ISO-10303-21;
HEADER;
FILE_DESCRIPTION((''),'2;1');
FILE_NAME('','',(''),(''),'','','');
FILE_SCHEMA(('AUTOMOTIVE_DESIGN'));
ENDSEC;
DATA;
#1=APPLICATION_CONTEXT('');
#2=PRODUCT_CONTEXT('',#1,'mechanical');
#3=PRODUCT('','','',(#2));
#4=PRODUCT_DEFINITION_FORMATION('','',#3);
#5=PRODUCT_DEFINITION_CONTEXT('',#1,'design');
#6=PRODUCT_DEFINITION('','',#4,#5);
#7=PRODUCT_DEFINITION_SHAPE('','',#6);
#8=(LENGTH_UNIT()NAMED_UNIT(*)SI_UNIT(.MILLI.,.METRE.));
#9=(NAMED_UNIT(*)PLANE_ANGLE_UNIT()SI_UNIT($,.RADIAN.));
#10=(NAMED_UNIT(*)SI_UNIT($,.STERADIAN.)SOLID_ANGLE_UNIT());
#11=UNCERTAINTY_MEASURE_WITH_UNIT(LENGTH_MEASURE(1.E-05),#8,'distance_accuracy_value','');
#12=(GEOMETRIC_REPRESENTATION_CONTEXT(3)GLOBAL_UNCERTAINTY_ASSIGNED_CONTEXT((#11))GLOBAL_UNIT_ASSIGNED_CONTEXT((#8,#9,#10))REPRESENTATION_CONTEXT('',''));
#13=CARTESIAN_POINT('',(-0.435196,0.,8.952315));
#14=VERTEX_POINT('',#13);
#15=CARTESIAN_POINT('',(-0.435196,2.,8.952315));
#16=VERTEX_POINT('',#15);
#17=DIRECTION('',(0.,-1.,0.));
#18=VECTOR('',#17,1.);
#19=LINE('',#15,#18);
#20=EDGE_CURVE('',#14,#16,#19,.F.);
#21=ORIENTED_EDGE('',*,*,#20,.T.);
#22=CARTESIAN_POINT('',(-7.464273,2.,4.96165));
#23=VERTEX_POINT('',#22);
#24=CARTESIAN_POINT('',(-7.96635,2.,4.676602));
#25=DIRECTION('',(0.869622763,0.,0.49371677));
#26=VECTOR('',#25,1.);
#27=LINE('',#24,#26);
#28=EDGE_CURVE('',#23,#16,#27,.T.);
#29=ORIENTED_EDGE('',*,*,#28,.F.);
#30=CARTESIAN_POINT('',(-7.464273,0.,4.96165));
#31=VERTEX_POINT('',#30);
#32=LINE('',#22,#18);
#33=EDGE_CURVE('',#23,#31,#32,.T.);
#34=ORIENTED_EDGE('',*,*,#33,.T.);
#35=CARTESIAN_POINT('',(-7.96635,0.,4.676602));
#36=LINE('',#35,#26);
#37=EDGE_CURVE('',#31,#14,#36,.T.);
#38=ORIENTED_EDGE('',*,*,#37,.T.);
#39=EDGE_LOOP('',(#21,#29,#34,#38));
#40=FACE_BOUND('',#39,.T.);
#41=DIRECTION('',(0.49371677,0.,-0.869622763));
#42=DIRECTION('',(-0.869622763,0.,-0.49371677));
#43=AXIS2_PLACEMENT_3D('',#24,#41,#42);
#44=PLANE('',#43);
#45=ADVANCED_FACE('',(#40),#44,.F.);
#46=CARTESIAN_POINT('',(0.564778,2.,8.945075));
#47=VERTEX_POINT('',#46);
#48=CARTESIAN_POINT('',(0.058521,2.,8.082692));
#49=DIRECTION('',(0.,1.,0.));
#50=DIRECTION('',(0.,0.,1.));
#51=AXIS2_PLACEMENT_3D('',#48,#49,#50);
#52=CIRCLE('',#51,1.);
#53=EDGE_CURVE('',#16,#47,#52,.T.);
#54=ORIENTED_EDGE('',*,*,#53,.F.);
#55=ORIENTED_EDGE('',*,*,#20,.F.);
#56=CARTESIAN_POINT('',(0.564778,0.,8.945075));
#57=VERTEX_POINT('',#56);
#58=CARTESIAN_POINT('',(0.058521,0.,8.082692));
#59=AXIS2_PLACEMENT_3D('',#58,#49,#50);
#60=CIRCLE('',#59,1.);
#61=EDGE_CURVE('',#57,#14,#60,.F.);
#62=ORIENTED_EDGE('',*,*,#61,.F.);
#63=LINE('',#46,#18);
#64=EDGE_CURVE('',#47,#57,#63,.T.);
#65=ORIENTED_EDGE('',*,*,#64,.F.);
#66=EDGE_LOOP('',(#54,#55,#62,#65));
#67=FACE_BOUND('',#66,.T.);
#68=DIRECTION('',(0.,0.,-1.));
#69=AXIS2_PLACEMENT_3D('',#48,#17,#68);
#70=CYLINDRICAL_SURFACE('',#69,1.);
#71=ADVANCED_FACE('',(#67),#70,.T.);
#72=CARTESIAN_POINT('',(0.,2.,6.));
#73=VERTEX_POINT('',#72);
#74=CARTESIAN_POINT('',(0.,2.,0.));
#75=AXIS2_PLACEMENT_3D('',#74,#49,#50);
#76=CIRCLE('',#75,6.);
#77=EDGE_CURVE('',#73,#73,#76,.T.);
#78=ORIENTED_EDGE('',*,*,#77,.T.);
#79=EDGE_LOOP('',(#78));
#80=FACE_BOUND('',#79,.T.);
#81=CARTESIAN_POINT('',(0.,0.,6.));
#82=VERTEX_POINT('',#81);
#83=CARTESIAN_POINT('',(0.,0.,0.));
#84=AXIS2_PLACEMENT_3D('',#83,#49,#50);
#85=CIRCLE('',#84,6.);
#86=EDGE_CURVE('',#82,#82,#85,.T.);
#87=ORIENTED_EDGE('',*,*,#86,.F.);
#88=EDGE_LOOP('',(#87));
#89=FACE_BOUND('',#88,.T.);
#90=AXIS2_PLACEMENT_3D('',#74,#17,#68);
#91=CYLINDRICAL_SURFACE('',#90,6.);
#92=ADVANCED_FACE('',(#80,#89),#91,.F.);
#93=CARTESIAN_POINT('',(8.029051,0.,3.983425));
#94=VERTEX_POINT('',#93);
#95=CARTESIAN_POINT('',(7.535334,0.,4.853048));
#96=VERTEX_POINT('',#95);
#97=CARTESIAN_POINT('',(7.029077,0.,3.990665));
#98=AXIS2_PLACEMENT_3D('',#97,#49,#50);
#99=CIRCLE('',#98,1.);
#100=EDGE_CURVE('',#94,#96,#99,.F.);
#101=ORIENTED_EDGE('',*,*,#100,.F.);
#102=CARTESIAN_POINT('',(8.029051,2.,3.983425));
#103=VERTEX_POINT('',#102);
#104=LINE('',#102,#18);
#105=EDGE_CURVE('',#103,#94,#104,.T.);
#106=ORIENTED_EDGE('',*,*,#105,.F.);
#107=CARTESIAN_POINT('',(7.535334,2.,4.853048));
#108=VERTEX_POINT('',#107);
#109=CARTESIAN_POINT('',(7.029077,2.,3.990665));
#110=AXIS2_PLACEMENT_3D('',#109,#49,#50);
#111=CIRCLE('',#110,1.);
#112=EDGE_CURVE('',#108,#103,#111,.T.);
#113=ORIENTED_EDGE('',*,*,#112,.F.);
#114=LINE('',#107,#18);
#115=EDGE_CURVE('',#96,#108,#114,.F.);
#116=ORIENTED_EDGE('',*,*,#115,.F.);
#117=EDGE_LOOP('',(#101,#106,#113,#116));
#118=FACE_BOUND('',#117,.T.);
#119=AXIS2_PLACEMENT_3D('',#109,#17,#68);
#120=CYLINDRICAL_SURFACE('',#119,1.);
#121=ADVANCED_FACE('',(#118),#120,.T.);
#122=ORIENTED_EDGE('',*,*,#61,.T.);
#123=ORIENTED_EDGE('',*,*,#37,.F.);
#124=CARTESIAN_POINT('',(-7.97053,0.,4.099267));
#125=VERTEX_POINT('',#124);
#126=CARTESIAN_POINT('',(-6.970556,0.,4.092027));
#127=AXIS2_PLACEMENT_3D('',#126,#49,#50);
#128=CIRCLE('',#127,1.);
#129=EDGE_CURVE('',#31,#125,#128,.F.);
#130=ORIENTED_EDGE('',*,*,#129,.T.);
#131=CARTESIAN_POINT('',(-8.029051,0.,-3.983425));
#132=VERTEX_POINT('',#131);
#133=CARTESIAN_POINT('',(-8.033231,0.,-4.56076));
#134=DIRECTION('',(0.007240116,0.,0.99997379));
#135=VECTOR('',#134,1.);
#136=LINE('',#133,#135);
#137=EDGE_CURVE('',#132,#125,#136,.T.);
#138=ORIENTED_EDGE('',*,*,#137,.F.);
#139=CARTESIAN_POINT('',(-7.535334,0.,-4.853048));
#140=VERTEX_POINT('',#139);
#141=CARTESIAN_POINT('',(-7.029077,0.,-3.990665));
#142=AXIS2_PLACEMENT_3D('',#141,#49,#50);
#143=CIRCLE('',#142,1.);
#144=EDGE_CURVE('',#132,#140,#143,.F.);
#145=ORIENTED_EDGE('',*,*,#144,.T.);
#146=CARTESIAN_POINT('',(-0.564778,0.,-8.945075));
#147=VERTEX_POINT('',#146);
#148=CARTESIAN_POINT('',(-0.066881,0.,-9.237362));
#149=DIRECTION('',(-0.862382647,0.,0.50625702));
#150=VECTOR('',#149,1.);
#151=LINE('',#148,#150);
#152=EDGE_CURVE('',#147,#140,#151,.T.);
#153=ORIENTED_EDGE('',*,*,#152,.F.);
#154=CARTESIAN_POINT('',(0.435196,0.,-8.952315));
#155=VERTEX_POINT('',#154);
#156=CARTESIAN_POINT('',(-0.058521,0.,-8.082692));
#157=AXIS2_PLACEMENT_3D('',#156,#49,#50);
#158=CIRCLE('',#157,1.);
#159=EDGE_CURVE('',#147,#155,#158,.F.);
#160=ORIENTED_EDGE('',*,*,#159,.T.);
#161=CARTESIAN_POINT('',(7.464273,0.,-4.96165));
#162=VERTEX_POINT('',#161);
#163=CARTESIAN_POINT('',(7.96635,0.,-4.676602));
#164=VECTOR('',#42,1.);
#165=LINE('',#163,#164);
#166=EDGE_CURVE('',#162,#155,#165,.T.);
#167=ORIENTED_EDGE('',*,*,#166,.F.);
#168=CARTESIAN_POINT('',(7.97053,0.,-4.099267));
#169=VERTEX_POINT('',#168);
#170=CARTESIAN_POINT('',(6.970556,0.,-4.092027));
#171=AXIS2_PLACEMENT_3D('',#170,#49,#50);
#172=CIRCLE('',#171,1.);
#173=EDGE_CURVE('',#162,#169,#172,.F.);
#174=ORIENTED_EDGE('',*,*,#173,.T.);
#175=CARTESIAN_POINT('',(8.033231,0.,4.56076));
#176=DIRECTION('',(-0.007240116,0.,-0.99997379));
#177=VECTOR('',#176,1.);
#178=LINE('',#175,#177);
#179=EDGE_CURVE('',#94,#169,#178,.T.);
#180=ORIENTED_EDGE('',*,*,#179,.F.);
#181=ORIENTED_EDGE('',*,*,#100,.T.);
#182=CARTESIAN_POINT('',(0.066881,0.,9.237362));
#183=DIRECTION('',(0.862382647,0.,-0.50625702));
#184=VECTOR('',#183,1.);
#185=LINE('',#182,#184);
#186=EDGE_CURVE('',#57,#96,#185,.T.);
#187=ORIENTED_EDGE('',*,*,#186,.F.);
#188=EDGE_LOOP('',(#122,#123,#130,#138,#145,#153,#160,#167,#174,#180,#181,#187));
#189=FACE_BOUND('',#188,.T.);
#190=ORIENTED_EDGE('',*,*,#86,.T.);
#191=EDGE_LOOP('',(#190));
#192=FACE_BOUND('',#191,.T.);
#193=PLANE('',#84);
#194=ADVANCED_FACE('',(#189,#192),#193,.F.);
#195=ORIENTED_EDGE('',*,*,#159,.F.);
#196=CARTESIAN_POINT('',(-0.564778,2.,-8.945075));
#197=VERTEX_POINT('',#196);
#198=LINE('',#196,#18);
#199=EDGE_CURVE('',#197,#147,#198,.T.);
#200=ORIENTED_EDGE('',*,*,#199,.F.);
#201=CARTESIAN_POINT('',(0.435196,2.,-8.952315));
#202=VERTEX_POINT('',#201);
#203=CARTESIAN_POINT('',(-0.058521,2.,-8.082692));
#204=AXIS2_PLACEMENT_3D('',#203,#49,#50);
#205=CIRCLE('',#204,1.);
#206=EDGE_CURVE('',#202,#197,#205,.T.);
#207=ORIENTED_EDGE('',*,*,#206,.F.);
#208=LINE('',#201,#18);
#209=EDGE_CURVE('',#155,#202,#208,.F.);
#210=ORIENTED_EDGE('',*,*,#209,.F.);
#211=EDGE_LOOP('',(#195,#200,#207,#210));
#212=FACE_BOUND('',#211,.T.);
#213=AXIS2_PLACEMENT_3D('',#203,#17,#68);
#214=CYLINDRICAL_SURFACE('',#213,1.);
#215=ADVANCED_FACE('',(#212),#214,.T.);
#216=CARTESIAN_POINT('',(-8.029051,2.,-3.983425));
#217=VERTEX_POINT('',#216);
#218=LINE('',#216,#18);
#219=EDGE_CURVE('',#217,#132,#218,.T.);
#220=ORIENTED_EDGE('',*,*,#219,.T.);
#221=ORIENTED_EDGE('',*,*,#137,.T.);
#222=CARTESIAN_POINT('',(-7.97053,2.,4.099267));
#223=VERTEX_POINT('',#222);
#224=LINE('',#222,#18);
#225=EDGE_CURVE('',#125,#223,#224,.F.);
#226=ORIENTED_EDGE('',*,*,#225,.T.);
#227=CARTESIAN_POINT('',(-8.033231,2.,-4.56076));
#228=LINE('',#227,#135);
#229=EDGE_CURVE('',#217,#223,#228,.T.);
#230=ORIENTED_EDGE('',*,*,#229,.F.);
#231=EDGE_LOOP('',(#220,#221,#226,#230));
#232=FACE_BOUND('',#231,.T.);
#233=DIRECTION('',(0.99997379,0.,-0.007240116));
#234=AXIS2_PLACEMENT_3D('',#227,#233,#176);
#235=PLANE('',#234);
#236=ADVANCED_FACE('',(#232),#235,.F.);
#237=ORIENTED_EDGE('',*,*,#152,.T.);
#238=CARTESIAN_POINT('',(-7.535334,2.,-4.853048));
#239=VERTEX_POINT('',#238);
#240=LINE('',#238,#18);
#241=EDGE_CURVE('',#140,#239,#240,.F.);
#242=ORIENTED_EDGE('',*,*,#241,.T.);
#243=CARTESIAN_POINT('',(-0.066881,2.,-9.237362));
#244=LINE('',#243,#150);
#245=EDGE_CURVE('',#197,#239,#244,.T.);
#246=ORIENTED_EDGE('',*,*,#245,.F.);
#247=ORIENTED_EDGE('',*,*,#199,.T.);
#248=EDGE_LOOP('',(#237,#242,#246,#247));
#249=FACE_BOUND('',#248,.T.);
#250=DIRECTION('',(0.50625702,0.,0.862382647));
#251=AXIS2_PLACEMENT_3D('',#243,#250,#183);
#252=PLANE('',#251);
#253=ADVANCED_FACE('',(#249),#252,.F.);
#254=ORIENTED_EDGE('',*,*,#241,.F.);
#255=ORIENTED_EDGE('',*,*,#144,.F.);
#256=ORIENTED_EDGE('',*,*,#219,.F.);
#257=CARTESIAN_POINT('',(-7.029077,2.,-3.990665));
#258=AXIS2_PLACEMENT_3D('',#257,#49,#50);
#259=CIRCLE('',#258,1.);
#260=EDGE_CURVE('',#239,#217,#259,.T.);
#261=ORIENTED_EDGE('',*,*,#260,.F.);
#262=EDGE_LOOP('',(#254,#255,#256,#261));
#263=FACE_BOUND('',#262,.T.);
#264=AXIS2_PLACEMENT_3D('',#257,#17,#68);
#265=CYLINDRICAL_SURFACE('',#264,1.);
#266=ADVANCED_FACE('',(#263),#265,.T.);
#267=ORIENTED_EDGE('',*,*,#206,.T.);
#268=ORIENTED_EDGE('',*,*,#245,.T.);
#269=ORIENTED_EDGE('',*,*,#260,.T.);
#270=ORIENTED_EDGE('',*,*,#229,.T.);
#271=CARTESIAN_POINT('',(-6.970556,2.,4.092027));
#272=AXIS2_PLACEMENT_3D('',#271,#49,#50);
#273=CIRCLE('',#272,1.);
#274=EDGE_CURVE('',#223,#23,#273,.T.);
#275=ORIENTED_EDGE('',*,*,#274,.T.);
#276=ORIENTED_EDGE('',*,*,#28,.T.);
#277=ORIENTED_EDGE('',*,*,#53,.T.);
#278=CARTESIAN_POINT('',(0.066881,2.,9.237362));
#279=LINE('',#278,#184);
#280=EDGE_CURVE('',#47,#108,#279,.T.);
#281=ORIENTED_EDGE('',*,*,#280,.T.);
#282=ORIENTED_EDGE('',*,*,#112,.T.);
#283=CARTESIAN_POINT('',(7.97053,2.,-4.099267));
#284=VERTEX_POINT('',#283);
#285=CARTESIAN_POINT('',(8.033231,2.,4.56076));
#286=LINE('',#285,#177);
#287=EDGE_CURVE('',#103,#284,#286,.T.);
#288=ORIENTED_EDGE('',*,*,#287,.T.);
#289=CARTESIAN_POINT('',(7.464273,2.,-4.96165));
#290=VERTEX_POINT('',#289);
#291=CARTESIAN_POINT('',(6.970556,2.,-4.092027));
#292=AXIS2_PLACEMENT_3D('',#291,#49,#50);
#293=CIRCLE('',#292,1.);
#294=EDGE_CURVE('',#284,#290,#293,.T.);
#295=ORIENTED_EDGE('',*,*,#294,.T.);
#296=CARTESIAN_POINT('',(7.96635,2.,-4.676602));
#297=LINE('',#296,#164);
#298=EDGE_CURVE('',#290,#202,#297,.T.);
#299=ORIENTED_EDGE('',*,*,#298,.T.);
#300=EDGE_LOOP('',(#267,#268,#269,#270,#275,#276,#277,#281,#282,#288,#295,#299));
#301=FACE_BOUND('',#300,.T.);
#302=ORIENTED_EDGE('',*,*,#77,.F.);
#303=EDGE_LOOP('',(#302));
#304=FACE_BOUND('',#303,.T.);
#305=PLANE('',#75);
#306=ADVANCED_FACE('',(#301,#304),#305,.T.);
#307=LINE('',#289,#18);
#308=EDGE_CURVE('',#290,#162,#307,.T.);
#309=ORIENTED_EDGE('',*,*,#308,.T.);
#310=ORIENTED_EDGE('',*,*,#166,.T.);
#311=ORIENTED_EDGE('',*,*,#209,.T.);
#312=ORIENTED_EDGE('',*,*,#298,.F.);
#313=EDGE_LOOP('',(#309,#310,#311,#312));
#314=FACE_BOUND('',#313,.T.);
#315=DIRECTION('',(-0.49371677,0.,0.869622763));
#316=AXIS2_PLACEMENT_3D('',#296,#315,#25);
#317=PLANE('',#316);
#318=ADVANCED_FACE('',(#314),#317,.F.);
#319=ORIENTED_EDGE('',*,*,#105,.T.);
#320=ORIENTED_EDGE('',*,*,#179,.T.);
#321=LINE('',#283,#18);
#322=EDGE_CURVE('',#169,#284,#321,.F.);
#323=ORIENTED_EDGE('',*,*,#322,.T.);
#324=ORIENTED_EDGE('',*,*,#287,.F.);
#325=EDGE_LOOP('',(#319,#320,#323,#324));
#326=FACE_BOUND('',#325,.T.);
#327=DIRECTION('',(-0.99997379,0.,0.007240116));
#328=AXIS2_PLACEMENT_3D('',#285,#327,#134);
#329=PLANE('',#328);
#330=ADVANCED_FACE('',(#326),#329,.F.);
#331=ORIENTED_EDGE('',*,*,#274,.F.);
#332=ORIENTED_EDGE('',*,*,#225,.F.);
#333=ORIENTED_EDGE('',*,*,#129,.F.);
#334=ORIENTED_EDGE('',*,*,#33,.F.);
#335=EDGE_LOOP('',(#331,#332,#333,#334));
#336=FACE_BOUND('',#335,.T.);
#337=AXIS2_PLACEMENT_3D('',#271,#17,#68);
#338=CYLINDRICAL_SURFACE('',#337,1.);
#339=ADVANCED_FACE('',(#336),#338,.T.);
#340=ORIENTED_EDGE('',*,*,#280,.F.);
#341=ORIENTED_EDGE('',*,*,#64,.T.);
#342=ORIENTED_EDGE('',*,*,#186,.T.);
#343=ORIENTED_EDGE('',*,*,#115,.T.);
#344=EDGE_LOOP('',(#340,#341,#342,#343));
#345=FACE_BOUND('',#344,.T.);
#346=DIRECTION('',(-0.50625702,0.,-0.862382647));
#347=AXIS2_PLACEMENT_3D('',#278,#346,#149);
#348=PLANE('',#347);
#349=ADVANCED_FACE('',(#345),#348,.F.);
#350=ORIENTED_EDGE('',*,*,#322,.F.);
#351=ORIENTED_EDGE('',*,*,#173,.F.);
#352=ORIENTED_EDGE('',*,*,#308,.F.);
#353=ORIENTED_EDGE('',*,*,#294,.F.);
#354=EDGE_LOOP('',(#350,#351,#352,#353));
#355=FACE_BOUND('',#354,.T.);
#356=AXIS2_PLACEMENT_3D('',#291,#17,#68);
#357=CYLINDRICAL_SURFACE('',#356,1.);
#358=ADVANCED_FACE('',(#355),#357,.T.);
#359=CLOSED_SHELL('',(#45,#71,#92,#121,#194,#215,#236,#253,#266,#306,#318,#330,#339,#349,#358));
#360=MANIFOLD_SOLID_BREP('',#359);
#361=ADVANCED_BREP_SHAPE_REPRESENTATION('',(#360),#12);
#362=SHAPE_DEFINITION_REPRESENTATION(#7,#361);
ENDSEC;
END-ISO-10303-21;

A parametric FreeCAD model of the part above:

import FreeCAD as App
import Part
import Sketcher
Q = App.Units.Quantity


def edges_at(feature, points):
    """Names of the edges that pass closest to the given points."""
    edges = feature.Shape.Edges
    near = lambda p: min(range(len(edges)), key=lambda i: edges[i].distToShape(Part.Vertex(*p))[0])
    return sorted({f"Edge{near(p) + 1}" for p in points})

doc = App.newDocument("Part")
body = doc.addObject("PartDesign::Body", "Body")

# Sketch on XZ plane
sketch1 = doc.addObject("Sketcher::SketchObject", "Sketch")
body.addObject(sketch1)
sketch1.AttachmentSupport = (doc.XZ_Plane, [""])
sketch1.MapMode = "FlatFace"
sketch1.addGeometry(Part.LineSegment(App.Vector(8, -5, 0), App.Vector(0, -9, 0)), False)
sketch1.addGeometry(Part.LineSegment(App.Vector(0, -9, 0), App.Vector(-8, -5, 0)), False)
sketch1.addGeometry(Part.LineSegment(App.Vector(-8, -5, 0), App.Vector(-8, 5, 0)), False)
sketch1.addGeometry(Part.LineSegment(App.Vector(-8, 5, 0), App.Vector(0, 9, 0)), False)
sketch1.addGeometry(Part.LineSegment(App.Vector(0, 9, 0), App.Vector(8, 5, 0)), False)
sketch1.addGeometry(Part.LineSegment(App.Vector(8, 5, 0), App.Vector(8, -5, 0)), False)
sketch1.addGeometry(Part.Circle(App.Vector(0, 0, 0), App.Vector(0, 0, 1), 6), False)
sketch1.addConstraint(Sketcher.Constraint("Coincident", 0, 2, 1, 1))
sketch1.addConstraint(Sketcher.Constraint("Coincident", 1, 2, 2, 1))
sketch1.addConstraint(Sketcher.Constraint("Coincident", 2, 2, 3, 1))
sketch1.addConstraint(Sketcher.Constraint("Coincident", 3, 2, 4, 1))
sketch1.addConstraint(Sketcher.Constraint("Coincident", 4, 2, 5, 1))
sketch1.addConstraint(Sketcher.Constraint("Coincident", 5, 2, 0, 1))
sketch1.addConstraint(Sketcher.Constraint("Coincident", 6, 3, -1, 1))
sketch1.addConstraint(Sketcher.Constraint("Symmetric", 0, 2, 3, 2, -1, 1))
sketch1.addConstraint(Sketcher.Constraint("Symmetric", 1, 2, 4, 2, -1, 1))
sketch1.addConstraint(Sketcher.Constraint("Symmetric", 2, 2, 5, 2, -1, 1))
sketch1.addConstraint(Sketcher.Constraint("Equal", 0, 1))
sketch1.addConstraint(Sketcher.Constraint("Equal", 1, 2))
sketch1.addConstraint(Sketcher.Constraint("Diameter", 6, Q("12 mm")))
sketch1.addConstraint(Sketcher.Constraint("DistanceX", 0, 2, -1, 1, Q("0.066881 mm")))
sketch1.addConstraint(Sketcher.Constraint("DistanceX", 1, 2, -1, 1, Q("8.033231 mm")))
sketch1.addConstraint(Sketcher.Constraint("DistanceY", 1, 2, -1, 1, Q("4.56076 mm")))
sketch1.addConstraint(Sketcher.Constraint("DistanceX", 2, 2, -1, 1, Q("7.96635 mm")))
pad1 = doc.addObject("PartDesign::Pad", "Pad")
body.addObject(pad1)
pad1.Profile = sketch1
pad1.Length = 2
pad1.Reversed = True
doc.recompute()

fillet = doc.addObject("PartDesign::Fillet", "Fillet")
body.addObject(fillet)
fillet.Base = (pad1, edges_at(pad1, [
    (8.033, 1, 4.561),
    (0.067, 1, 9.237),
    (-7.966, 1, 4.677),
    (-8.033, 1, -4.561),
    (-0.067, 1, -9.237),
    (7.966, 1, -4.677),
]))
fillet.Radius = 1

doc.recompute()
